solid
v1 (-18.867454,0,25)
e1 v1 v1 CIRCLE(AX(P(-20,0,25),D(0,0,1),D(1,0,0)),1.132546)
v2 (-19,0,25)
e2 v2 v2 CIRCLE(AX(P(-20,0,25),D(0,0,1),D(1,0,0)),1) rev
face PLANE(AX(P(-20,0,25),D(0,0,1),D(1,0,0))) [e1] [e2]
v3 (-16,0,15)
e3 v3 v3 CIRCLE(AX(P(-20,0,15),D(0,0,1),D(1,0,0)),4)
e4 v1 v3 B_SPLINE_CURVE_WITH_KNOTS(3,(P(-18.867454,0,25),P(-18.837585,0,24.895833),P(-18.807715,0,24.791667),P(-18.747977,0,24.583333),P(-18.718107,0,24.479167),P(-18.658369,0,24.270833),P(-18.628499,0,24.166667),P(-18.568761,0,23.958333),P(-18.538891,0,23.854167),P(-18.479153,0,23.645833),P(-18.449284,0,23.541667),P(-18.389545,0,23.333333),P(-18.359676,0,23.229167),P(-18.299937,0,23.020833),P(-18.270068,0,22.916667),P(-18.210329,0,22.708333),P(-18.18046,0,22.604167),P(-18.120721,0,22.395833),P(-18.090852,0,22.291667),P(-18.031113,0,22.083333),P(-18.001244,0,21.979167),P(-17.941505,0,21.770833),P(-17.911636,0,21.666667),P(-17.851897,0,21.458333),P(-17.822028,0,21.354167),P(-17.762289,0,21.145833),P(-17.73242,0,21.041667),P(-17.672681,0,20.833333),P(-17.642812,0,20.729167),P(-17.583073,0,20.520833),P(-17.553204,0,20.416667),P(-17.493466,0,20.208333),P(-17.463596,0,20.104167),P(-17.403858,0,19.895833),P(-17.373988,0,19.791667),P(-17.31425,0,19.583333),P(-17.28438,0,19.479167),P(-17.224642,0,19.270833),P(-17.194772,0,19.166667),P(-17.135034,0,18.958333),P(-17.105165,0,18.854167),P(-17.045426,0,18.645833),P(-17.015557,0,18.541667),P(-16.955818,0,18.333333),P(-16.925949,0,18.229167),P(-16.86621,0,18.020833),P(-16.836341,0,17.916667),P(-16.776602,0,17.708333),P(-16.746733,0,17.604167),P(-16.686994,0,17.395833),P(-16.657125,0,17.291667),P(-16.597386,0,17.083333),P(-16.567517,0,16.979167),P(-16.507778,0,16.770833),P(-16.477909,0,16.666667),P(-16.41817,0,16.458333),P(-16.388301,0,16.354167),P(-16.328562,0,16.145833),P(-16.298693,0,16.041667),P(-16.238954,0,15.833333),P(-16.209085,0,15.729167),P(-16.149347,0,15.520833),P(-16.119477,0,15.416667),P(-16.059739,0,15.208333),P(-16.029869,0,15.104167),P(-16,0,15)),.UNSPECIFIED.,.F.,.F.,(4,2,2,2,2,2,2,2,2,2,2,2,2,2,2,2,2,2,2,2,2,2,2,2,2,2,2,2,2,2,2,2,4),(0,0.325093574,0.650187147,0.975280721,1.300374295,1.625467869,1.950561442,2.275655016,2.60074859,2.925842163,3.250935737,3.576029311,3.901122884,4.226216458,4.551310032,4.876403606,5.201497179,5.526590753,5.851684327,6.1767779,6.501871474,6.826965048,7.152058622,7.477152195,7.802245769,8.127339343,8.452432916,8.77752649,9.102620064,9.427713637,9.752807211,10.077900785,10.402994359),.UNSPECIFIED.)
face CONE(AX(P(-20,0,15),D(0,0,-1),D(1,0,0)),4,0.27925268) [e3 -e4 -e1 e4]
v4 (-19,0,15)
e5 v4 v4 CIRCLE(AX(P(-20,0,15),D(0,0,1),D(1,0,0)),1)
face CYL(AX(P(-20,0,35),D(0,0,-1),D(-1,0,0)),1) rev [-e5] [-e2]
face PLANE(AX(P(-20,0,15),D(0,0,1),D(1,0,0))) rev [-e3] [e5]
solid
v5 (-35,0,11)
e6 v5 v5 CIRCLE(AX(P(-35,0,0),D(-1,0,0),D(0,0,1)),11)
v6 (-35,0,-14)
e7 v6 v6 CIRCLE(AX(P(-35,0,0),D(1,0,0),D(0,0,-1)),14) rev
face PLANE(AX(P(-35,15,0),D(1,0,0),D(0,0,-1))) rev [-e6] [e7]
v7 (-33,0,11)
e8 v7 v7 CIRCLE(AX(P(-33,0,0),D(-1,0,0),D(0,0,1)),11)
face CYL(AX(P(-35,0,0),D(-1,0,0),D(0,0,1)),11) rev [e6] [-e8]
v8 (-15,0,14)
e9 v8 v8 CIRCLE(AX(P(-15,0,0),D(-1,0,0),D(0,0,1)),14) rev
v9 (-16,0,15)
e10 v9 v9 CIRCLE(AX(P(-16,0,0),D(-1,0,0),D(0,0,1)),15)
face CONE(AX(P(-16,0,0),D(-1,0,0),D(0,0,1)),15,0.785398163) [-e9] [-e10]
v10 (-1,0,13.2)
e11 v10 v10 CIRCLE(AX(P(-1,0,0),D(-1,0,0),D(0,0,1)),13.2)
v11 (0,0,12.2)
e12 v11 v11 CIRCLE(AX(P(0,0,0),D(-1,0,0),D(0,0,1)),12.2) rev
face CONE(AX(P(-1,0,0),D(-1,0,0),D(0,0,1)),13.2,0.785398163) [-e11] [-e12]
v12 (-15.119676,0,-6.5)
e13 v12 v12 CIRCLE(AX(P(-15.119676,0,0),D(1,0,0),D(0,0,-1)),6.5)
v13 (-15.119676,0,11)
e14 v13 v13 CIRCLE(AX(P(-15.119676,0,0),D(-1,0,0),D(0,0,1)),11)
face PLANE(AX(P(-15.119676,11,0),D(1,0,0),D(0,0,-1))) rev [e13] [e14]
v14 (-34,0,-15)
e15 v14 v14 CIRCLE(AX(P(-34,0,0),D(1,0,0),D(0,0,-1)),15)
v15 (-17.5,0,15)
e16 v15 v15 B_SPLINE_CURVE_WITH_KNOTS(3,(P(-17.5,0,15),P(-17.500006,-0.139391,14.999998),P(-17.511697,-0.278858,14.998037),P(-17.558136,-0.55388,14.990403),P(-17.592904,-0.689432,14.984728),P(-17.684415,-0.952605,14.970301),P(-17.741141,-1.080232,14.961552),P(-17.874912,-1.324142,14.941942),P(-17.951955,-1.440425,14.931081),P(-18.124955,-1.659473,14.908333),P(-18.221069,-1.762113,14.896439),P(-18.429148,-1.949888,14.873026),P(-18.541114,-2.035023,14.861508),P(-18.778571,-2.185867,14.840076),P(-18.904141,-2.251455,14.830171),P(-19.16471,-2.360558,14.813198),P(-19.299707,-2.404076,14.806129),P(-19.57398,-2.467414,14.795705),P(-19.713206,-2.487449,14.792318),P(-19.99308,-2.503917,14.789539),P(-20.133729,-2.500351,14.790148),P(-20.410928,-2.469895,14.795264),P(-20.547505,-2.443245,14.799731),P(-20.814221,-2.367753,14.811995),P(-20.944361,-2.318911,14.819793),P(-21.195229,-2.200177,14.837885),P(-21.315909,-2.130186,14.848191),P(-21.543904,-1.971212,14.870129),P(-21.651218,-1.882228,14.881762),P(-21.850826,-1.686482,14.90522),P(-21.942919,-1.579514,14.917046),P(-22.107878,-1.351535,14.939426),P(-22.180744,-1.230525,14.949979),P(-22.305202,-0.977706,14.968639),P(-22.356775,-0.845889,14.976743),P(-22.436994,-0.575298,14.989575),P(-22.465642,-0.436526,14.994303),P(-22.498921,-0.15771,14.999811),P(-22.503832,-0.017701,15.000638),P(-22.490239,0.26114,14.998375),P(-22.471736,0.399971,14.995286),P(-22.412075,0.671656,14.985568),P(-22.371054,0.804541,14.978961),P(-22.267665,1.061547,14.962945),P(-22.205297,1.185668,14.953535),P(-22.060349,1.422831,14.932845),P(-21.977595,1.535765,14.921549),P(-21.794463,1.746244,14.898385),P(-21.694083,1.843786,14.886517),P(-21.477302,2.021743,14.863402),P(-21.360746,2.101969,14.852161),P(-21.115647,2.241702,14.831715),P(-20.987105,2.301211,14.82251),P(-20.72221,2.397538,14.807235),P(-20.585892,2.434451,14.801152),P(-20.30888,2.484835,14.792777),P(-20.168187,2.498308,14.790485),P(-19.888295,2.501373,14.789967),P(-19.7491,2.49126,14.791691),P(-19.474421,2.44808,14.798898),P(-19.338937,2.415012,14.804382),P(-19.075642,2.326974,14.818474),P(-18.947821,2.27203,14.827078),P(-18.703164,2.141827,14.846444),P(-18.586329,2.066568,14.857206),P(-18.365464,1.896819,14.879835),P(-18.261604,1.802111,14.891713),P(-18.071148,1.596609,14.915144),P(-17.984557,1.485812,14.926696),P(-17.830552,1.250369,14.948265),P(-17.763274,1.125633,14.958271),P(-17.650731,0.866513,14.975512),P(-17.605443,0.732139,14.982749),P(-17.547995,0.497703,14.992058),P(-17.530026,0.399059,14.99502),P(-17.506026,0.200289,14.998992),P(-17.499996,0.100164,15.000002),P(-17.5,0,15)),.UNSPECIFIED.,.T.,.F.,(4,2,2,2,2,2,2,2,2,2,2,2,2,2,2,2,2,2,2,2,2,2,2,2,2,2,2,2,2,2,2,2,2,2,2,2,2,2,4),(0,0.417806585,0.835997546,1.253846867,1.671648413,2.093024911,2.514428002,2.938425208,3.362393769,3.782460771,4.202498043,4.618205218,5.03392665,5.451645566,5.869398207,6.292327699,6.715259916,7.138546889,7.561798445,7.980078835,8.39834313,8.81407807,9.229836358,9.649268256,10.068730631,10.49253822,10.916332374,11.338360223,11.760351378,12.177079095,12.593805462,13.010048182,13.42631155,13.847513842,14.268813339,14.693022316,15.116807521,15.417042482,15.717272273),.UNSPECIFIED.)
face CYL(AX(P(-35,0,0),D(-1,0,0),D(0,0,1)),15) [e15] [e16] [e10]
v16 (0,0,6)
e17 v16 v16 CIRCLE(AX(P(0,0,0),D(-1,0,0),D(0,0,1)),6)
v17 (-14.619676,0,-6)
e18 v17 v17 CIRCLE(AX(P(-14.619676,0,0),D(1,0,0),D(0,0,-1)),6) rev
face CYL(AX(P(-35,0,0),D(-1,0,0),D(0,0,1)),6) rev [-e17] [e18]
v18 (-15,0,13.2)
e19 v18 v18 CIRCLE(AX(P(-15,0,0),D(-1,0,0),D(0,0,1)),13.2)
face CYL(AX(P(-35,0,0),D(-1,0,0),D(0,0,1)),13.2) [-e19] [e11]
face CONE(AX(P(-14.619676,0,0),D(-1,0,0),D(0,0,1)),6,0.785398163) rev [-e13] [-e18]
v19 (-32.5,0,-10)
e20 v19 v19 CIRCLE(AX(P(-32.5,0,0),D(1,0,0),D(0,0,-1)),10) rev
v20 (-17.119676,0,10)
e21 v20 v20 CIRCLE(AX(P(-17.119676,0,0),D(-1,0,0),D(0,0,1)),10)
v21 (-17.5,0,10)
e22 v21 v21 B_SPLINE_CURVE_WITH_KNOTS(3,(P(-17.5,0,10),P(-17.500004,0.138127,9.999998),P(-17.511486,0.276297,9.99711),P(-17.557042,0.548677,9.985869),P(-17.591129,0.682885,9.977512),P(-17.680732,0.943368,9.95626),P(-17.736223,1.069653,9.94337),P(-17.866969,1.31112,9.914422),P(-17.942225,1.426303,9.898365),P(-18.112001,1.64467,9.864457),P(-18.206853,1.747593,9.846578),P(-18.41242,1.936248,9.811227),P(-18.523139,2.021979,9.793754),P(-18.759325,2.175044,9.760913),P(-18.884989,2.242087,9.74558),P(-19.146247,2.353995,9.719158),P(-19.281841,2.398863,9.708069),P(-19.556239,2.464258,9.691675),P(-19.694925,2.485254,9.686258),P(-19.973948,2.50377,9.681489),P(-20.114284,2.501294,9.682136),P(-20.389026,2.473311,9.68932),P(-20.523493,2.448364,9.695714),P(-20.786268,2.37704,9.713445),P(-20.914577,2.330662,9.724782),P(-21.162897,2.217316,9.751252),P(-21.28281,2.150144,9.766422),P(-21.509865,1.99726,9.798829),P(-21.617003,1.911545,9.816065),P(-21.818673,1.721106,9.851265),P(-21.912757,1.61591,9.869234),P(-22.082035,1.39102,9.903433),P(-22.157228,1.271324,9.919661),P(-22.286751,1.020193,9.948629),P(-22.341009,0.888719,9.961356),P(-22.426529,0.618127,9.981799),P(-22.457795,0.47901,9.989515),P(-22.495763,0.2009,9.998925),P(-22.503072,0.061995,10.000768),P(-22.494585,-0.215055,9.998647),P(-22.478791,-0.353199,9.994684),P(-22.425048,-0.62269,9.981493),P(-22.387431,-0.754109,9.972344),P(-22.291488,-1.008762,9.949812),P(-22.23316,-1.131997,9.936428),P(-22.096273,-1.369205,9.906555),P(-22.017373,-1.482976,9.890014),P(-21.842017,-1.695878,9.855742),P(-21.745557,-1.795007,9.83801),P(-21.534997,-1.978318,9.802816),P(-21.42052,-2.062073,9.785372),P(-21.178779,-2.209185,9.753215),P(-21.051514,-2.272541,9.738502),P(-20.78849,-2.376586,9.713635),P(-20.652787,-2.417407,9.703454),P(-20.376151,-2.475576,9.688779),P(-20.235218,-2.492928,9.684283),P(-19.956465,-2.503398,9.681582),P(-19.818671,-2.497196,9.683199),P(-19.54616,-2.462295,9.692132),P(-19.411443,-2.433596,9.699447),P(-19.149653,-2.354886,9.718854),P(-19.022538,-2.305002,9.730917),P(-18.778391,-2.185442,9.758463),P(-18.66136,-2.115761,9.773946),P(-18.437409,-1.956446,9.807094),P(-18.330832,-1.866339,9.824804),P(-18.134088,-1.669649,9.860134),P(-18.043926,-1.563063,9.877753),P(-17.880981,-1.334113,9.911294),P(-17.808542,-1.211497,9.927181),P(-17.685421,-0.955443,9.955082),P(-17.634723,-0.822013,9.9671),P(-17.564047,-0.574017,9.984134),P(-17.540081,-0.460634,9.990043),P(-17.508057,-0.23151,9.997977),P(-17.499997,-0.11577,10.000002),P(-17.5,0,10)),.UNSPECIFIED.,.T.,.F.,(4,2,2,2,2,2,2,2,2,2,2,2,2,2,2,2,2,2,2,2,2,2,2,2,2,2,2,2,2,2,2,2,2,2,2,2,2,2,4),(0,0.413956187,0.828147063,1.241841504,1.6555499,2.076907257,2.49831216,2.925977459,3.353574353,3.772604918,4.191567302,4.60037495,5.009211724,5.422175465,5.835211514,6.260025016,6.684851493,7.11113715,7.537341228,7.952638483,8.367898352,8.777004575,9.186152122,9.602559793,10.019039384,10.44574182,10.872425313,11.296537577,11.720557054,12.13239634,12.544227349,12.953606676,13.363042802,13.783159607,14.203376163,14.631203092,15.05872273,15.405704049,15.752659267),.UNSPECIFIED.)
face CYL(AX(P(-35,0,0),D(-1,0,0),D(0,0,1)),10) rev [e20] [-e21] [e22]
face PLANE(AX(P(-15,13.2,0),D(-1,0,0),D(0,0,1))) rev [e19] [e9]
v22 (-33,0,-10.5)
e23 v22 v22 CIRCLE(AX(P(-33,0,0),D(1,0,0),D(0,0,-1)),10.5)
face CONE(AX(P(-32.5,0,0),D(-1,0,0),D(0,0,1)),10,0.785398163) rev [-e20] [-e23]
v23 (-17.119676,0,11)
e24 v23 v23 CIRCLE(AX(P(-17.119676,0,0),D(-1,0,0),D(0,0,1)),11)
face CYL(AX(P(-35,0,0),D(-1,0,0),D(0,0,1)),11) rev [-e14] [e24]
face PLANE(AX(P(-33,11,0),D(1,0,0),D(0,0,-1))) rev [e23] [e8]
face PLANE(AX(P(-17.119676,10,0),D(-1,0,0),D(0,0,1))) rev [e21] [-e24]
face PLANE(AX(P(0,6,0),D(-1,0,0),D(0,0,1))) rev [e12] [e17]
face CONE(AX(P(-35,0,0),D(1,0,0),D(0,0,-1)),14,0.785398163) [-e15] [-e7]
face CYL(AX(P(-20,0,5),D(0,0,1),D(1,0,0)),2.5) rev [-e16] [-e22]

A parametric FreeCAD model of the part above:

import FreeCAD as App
import Part
import Sketcher

V = App.Vector


def edges_at(feature, points):
    """Names of the edges that pass closest to the given points."""
    edges = feature.Shape.Edges
    near = lambda p: min(range(len(edges)), key=lambda i: edges[i].distToShape(Part.Vertex(*p))[0])
    return sorted({f"Edge{near(p) + 1}" for p in points})


def add_polygon(sketch, points):
    """Adds a closed chain of lines whose ends are joined by coincident constraints."""
    first, n = sketch.GeometryCount, len(points)
    for a, b in zip(points, points[1:] + points[:1]):
        sketch.addGeometry(Part.LineSegment(App.Vector(*a, 0), App.Vector(*b, 0)), False)
    for i in range(n):
        sketch.addConstraint(Sketcher.Constraint("Coincident", first + i, 2, first + (i + 1) % n, 1))

doc = App.newDocument("Part")
body = doc.addObject("PartDesign::Body", "Body")

# Sketch on XY plane
sketch1 = body.newObject("Sketcher::SketchObject", "Sketch")
sketch1.AttachmentSupport = (doc.getObject("XY_Plane"), [""])
sketch1.MapMode = "FlatFace"
add_polygon(sketch1, [(0, 6), (0, 13.2), (-15, 13.2), (-15, 15), (-35, 15), (-35, 11), (-33, 11), (-33, 10), (-17.1, 10), (-17.1, 11), (-15.1, 11), (-15.1, 6)])  # lines 0-11
sketch1.addConstraint([
    Sketcher.Constraint("Vertical", 0),
    Sketcher.Constraint("Horizontal", 1),
    Sketcher.Constraint("Vertical", 2),
    Sketcher.Constraint("Horizontal", 3),
    Sketcher.Constraint("Vertical", 4),
    Sketcher.Constraint("Horizontal", 5),
    Sketcher.Constraint("Vertical", 6),
    Sketcher.Constraint("Horizontal", 7),
    Sketcher.Constraint("Vertical", 8),
    Sketcher.Constraint("Horizontal", 9),
    Sketcher.Constraint("Vertical", 10),
    Sketcher.Constraint("Horizontal", 11),
    Sketcher.Constraint("PointOnObject", 0, 2, -2),
    Sketcher.Constraint("Horizontal", 5, 2, 8, 2),
    Sketcher.Constraint("Equal", 5, 9),
    Sketcher.Constraint("DistanceX", 1, 2, 1, 1, 15.0),
    Sketcher.Constraint("DistanceX", 3, 2, 3, 1, 20.0),
    Sketcher.Constraint("DistanceX", 5, 1, 5, 2, 2.0),
    Sketcher.Constraint("DistanceY", 4, 2, 4, 1, 4.0),
    Sketcher.Constraint("DistanceY", 6, 2, 6, 1, 1.0),
    Sketcher.Constraint("DistanceY", 10, 2, 10, 1, 5.0),
    Sketcher.Constraint("DistanceY", 0, 1, 0, 2, 7.2),
    Sketcher.Constraint("DistanceY", -1, 1, 2, 2, 15.0),
    Sketcher.Constraint("DistanceX", 7, 1, 7, 2, 15.880324),
])
revolution = body.newObject("PartDesign::Revolution", "Revolution")
revolution.Profile = sketch1
revolution.ReferenceAxis = (sketch1, ["H_Axis"])
revolution.Angle = 360
doc.recompute()

chamfer = body.newObject("PartDesign::Chamfer", "Chamfer")
chamfer.Base = (revolution, edges_at(revolution, [(-33, 0, -10)]))
chamfer.Size = 0.5
doc.recompute()

chamfer2 = body.newObject("PartDesign::Chamfer", "Chamfer001")
chamfer2.Base = (chamfer, edges_at(chamfer, [(-15.12, 0, -6)]))
chamfer2.Size = 0.5
doc.recompute()

chamfer3 = body.newObject("PartDesign::Chamfer", "Chamfer002")
chamfer3.Base = (chamfer2, edges_at(chamfer2, [(0, 0, -13.2), (-15, 0, -15), (-35, 0, -15)]))
chamfer3.Size = 1

# Sketch on XY plane
sketch2 = body.newObject("Sketcher::SketchObject", "Sketch001")
sketch2.AttachmentSupport = (doc.getObject("XY_Plane"), [""])
sketch2.MapMode = "FlatFace"
sketch2.AttachmentOffset = App.Placement(V(0, 0, 15), App.Rotation())
sketch2.addGeometry(Part.Circle(V(-20, 0, 0), V(0, 0, 1), 2.5), False)
sketch2.addConstraint([
    Sketcher.Constraint("PointOnObject", 0, 3, -1),
    Sketcher.Constraint("Diameter", 0, 5.0),
    Sketcher.Constraint("DistanceX", 0, 3, -1, 1, 20.0),
])
pocket1 = body.newObject("PartDesign::Pocket", "Pocket")
pocket1.Profile = sketch2
pocket1.Length = 10
body2 = doc.addObject("PartDesign::Body", "Body001")

# Sketch on XY plane
sketch3 = body2.newObject("Sketcher::SketchObject", "Sketch002")
sketch3.AttachmentSupport = (doc.getObject("XY_Plane001"), [""])
sketch3.MapMode = "FlatFace"
sketch3.AttachmentOffset = App.Placement(V(0, 0, 15), App.Rotation())
sketch3.addGeometry(Part.Circle(V(-20, 0, 0), V(0, 0, 1), 4), False)
sketch3.addConstraint([
    Sketcher.Constraint("PointOnObject", 0, 3, -1),
    Sketcher.Constraint("Diameter", 0, 8.0),
    Sketcher.Constraint("DistanceX", 0, 3, -1, 1, 20.0),
])
pad1 = body2.newObject("PartDesign::Pad", "Pad")
pad1.Profile = sketch3
pad1.Length = 10
pad1.TaperAngle = -16

# Sketch on XY plane
sketch4 = body2.newObject("Sketcher::SketchObject", "Sketch003")
sketch4.AttachmentSupport = (doc.getObject("XY_Plane001"), [""])
sketch4.MapMode = "FlatFace"
sketch4.AttachmentOffset = App.Placement(V(0, 0, 15), App.Rotation())
sketch4.addGeometry(Part.Circle(V(-20, 0, 0), V(0, 0, 1), 1), False)
sketch4.addConstraint([
    Sketcher.Constraint("PointOnObject", 0, 3, -1),
    Sketcher.Constraint("Diameter", 0, 2.0),
    Sketcher.Constraint("DistanceX", 0, 3, -1, 1, 20.0),
])
pocket2 = body2.newObject("PartDesign::Pocket", "Pocket001")
pocket2.Profile = sketch4
pocket2.Length = 20
pocket2.Reversed = True

doc.recompute()
